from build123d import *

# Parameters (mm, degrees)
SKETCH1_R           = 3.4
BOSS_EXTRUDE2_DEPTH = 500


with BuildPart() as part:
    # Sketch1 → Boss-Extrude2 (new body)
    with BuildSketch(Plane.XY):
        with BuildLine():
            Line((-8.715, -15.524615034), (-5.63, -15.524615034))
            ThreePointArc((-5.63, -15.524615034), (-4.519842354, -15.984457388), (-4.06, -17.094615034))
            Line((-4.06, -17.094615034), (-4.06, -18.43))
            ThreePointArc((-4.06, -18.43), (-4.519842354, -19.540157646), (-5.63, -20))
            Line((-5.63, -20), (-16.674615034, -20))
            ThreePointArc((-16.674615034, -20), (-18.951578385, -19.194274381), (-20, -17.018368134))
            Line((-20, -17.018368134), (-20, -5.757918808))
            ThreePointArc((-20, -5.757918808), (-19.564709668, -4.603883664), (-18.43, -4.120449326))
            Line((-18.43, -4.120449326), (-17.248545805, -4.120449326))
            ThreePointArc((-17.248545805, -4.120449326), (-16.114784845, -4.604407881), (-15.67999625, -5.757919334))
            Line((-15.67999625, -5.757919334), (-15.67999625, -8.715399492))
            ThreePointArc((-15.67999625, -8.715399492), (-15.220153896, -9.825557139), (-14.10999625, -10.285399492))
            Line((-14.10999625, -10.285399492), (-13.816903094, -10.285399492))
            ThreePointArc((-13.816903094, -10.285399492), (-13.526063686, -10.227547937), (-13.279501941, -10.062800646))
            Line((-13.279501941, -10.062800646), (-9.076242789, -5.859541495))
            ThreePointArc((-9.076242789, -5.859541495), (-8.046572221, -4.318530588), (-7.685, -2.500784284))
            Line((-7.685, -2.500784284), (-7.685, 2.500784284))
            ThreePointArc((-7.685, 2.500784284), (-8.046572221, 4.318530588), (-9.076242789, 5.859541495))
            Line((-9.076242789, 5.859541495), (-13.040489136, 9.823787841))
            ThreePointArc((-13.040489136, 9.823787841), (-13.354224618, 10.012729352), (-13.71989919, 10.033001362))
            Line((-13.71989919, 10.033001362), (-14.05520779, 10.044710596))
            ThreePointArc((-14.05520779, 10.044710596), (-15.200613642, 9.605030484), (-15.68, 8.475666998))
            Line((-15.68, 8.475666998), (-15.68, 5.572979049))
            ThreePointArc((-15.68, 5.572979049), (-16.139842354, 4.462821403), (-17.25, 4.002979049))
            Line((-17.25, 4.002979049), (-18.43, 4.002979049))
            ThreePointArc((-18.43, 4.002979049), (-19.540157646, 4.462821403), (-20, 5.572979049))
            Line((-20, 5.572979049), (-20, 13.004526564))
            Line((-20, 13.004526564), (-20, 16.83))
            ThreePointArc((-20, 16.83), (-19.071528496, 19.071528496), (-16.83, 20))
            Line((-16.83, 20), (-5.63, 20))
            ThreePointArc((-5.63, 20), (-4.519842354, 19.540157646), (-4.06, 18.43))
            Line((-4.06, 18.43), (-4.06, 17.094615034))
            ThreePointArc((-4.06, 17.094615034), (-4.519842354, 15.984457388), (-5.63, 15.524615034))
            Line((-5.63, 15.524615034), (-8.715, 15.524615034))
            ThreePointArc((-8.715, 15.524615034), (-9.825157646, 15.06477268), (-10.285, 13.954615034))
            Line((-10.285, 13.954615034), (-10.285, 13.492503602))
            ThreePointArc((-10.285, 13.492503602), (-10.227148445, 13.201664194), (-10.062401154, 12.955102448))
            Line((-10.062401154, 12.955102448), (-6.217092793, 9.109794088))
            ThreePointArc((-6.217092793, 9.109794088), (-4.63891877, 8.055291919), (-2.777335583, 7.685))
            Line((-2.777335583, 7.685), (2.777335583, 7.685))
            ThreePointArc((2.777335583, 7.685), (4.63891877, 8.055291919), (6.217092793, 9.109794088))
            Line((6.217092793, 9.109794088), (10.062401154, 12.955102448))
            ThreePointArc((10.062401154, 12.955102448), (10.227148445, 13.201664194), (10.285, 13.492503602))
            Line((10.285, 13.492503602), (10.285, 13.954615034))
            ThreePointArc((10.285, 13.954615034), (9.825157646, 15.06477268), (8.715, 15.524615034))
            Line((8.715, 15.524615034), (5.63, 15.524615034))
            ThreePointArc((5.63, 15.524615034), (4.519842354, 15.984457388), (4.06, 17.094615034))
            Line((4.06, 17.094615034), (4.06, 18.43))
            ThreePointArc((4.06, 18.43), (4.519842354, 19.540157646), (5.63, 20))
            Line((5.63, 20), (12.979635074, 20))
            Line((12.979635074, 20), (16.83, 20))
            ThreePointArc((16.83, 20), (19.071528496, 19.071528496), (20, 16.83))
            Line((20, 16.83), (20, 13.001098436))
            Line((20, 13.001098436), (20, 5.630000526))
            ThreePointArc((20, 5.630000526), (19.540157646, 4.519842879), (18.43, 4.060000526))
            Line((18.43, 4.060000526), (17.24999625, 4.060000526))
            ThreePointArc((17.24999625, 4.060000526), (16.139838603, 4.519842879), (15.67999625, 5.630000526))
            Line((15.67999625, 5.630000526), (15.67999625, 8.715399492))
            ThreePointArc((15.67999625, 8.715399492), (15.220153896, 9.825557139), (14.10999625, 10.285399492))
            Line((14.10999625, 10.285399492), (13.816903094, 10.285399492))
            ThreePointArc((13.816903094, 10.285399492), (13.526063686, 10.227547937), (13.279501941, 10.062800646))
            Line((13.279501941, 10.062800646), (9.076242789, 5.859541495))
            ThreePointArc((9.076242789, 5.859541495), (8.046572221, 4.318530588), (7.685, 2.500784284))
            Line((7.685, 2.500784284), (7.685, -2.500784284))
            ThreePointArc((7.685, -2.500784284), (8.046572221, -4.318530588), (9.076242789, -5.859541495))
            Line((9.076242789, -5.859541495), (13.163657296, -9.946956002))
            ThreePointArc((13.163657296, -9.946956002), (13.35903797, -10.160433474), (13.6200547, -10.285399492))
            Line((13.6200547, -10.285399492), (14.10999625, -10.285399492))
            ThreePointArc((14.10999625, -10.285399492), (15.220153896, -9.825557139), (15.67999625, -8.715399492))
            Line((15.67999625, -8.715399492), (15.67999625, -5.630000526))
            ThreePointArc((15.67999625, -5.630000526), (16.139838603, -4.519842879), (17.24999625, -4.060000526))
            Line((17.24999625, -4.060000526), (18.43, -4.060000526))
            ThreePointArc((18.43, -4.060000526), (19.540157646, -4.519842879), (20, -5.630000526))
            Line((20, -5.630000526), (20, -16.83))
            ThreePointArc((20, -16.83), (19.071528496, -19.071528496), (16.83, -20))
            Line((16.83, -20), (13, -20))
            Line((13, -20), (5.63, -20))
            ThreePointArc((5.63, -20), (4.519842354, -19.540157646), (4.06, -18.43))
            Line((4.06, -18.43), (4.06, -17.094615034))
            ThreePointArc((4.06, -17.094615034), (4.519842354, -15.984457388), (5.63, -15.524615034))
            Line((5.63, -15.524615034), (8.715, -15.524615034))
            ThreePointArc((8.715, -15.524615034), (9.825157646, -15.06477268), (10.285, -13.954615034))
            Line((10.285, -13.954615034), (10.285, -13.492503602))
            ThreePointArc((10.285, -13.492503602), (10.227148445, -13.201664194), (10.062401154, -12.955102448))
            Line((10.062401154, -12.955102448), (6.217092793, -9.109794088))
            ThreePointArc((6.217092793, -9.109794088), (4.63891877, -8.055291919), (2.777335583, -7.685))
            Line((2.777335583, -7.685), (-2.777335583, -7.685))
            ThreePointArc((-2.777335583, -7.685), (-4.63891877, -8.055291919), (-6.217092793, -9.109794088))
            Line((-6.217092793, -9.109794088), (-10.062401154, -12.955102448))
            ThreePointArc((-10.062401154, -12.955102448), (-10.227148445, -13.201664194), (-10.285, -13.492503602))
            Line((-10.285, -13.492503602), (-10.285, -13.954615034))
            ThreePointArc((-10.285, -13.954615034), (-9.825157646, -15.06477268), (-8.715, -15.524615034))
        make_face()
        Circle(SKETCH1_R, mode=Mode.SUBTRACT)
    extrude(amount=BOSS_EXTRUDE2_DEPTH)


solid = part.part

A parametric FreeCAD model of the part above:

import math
import FreeCAD as App
import Part
import Sketcher

V = App.Vector
Q = App.Units.Quantity

doc = App.newDocument("Part")
body = doc.addObject("PartDesign::Body", "Body")

# Sketch on XY plane
sketch1 = body.newObject("Sketcher::SketchObject", "Sketch")
sketch1.AttachmentSupport = (doc.getObject("XY_Plane"), [""])
sketch1.MapMode = "FlatFace"
sketch1.addGeometry([
    Part.LineSegment(V(-5.63, -15.52, 0), V(-8.71, -15.52, 0)),  # 0
    Part.ArcOfCircle(Part.Circle(V(-8.71, -13.95, 0), V(0, 0, 1), 1.57), math.radians(-180), math.radians(-90)),  # 1
    Part.LineSegment(V(-10.29, -13.95, 0), V(-10.29, -13.49, 0)),  # 2
    Part.ArcOfCircle(Part.Circle(V(-9.52, -13.49, 0), V(0, 0, 1), 0.76), math.radians(135), math.radians(180)),  # 3
    Part.LineSegment(V(-10.06, -12.96, 0), V(-6.22, -9.11, 0)),  # 4
    Part.ArcOfCircle(Part.Circle(V(-2.78, -12.55, 0), V(0, 0, 1), 4.86), math.radians(90), math.radians(135)),  # 5
    Part.LineSegment(V(-2.78, -7.68, 0), V(2.78, -7.68, 0)),  # 6
    Part.ArcOfCircle(Part.Circle(V(2.78, -12.55, 0), V(0, 0, 1), 4.86), math.radians(45), math.radians(90)),  # 7
    Part.LineSegment(V(6.22, -9.11, 0), V(10.06, -12.96, 0)),  # 8
    Part.ArcOfCircle(Part.Circle(V(9.52, -13.49, 0), V(0, 0, 1), 0.76), math.radians(0), math.radians(45)),  # 9
    Part.LineSegment(V(10.29, -13.49, 0), V(10.29, -13.95, 0)),  # 10
    Part.ArcOfCircle(Part.Circle(V(8.71, -13.95, 0), V(0, 0, 1), 1.57), math.radians(-90), math.radians(0)),  # 11
    Part.LineSegment(V(8.71, -15.52, 0), V(5.63, -15.52, 0)),  # 12
    Part.ArcOfCircle(Part.Circle(V(5.63, -17.09, 0), V(0, 0, 1), 1.57), math.radians(90), math.radians(180)),  # 13
    Part.LineSegment(V(4.06, -17.09, 0), V(4.06, -18.43, 0)),  # 14
    Part.ArcOfCircle(Part.Circle(V(5.63, -18.43, 0), V(0, 0, 1), 1.57), math.radians(-180), math.radians(-90)),  # 15
    Part.LineSegment(V(5.63, -20, 0), V(16.83, -20, 0)),  # 16
    Part.ArcOfCircle(Part.Circle(V(16.83, -16.83, 0), V(0, 0, 1), 3.17), math.radians(-90), math.radians(0)),  # 17
    Part.LineSegment(V(20, -16.83, 0), V(20, -5.63, 0)),  # 18
    Part.ArcOfCircle(Part.Circle(V(18.43, -5.63, 0), V(0, 0, 1), 1.57), math.radians(0), math.radians(90)),  # 19
    Part.LineSegment(V(18.43, -4.06, 0), V(17.25, -4.06, 0)),  # 20
    Part.ArcOfCircle(Part.Circle(V(17.25, -5.63, 0), V(0, 0, 1), 1.57), math.radians(90), math.radians(180)),  # 21
    Part.LineSegment(V(15.68, -5.63, 0), V(15.68, -8.72, 0)),  # 22
    Part.ArcOfCircle(Part.Circle(V(14.11, -8.72, 0), V(0, 0, 1), 1.57), math.radians(-90), math.radians(0)),  # 23
    Part.LineSegment(V(14.11, -10.29, 0), V(13.62, -10.29, 0)),  # 24
    Part.ArcOfCircle(Part.Circle(V(13.81, -9.55, 0), V(0, 0, 1), 0.76), math.radians(-149), math.radians(-105)),  # 25
    Part.LineSegment(V(13.16, -9.95, 0), V(9.08, -5.86, 0)),  # 26
    Part.ArcOfCircle(Part.Circle(V(12.44, -2.5, 0), V(0, 0, 1), 4.75), math.radians(-180), math.radians(-135)),  # 27
    Part.LineSegment(V(7.68, -2.5, 0), V(7.68, 2.5, 0)),  # 28
    Part.ArcOfCircle(Part.Circle(V(12.44, 2.5, 0), V(0, 0, 1), 4.75), math.radians(135), math.radians(180)),  # 29
    Part.LineSegment(V(9.08, 5.86, 0), V(13.28, 10.06, 0)),  # 30
    Part.ArcOfCircle(Part.Circle(V(13.82, 9.53, 0), V(0, 0, 1), 0.76), math.radians(90), math.radians(135)),  # 31
    Part.LineSegment(V(13.82, 10.29, 0), V(14.11, 10.29, 0)),  # 32
    Part.ArcOfCircle(Part.Circle(V(14.11, 8.72, 0), V(0, 0, 1), 1.57), math.radians(0), math.radians(90)),  # 33
    Part.LineSegment(V(15.68, 8.72, 0), V(15.68, 5.63, 0)),  # 34
    Part.ArcOfCircle(Part.Circle(V(17.25, 5.63, 0), V(0, 0, 1), 1.57), math.radians(180), math.radians(270)),  # 35
    Part.LineSegment(V(17.25, 4.06, 0), V(18.43, 4.06, 0)),  # 36
    Part.ArcOfCircle(Part.Circle(V(18.43, 5.63, 0), V(0, 0, 1), 1.57), math.radians(-90), math.radians(0)),  # 37
    Part.LineSegment(V(20, 5.63, 0), V(20, 16.83, 0)),  # 38
    Part.ArcOfCircle(Part.Circle(V(16.83, 16.83, 0), V(0, 0, 1), 3.17), math.radians(0), math.radians(90)),  # 39
    Part.LineSegment(V(16.83, 20, 0), V(5.63, 20, 0)),  # 40
    Part.ArcOfCircle(Part.Circle(V(5.63, 18.43, 0), V(0, 0, 1), 1.57), math.radians(90), math.radians(180)),  # 41
    Part.LineSegment(V(4.06, 18.43, 0), V(4.06, 17.09, 0)),  # 42
    Part.ArcOfCircle(Part.Circle(V(5.63, 17.09, 0), V(0, 0, 1), 1.57), math.radians(-180), math.radians(-90)),  # 43
    Part.LineSegment(V(5.63, 15.52, 0), V(8.71, 15.52, 0)),  # 44
    Part.ArcOfCircle(Part.Circle(V(8.71, 13.95, 0), V(0, 0, 1), 1.57), math.radians(0), math.radians(90)),  # 45
    Part.LineSegment(V(10.29, 13.95, 0), V(10.29, 13.49, 0)),  # 46
    Part.ArcOfCircle(Part.Circle(V(9.52, 13.49, 0), V(0, 0, 1), 0.76), math.radians(-45), math.radians(0)),  # 47
    Part.LineSegment(V(10.06, 12.96, 0), V(6.22, 9.11, 0)),  # 48
    Part.ArcOfCircle(Part.Circle(V(2.78, 12.55, 0), V(0, 0, 1), 4.86), math.radians(-90), math.radians(-45)),  # 49
    Part.LineSegment(V(2.78, 7.68, 0), V(-2.78, 7.68, 0)),  # 50
    Part.ArcOfCircle(Part.Circle(V(-2.78, 12.55, 0), V(0, 0, 1), 4.86), math.radians(-135), math.radians(-90)),  # 51
    Part.LineSegment(V(-6.22, 9.11, 0), V(-10.06, 12.96, 0)),  # 52
    Part.ArcOfCircle(Part.Circle(V(-9.52, 13.49, 0), V(0, 0, 1), 0.76), math.radians(180), math.radians(225)),  # 53
    Part.LineSegment(V(-10.29, 13.49, 0), V(-10.29, 13.95, 0)),  # 54
    Part.ArcOfCircle(Part.Circle(V(-8.71, 13.95, 0), V(0, 0, 1), 1.57), math.radians(90), math.radians(180)),  # 55
    Part.LineSegment(V(-8.71, 15.52, 0), V(-5.63, 15.52, 0)),  # 56
    Part.ArcOfCircle(Part.Circle(V(-5.63, 17.09, 0), V(0, 0, 1), 1.57), math.radians(-90), math.radians(0)),  # 57
    Part.LineSegment(V(-4.06, 17.09, 0), V(-4.06, 18.43, 0)),  # 58
    Part.ArcOfCircle(Part.Circle(V(-5.63, 18.43, 0), V(0, 0, 1), 1.57), math.radians(0), math.radians(90)),  # 59
    Part.LineSegment(V(-5.63, 20, 0), V(-16.83, 20, 0)),  # 60
    Part.ArcOfCircle(Part.Circle(V(-16.83, 16.83, 0), V(0, 0, 1), 3.17), math.radians(90), math.radians(180)),  # 61
    Part.LineSegment(V(-20, 16.83, 0), V(-20, 5.57, 0)),  # 62
    Part.ArcOfCircle(Part.Circle(V(-18.43, 5.57, 0), V(0, 0, 1), 1.57), math.radians(-180), math.radians(-90)),  # 63
    Part.LineSegment(V(-18.43, 4, 0), V(-17.25, 4, 0)),  # 64
    Part.ArcOfCircle(Part.Circle(V(-17.25, 5.57, 0), V(0, 0, 1), 1.57), math.radians(-90), math.radians(0)),  # 65
    Part.LineSegment(V(-15.68, 5.57, 0), V(-15.68, 8.48, 0)),  # 66
    Part.ArcOfCircle(Part.Circle(V(-14.11, 8.48, 0), V(0, 0, 1), 1.57), math.radians(88), math.radians(180)),  # 67
    Part.LineSegment(V(-14.06, 10.04, 0), V(-13.72, 10.03, 0)),  # 68
    Part.ArcOfCircle(Part.Circle(V(-13.58, 9.29, 0), V(0, 0, 1), 0.76), math.radians(45), math.radians(101)),  # 69
    Part.LineSegment(V(-13.04, 9.82, 0), V(-9.08, 5.86, 0)),  # 70
    Part.ArcOfCircle(Part.Circle(V(-12.44, 2.5, 0), V(0, 0, 1), 4.75), math.radians(0), math.radians(45)),  # 71
    Part.LineSegment(V(-7.68, 2.5, 0), V(-7.68, -2.5, 0)),  # 72
    Part.ArcOfCircle(Part.Circle(V(-12.44, -2.5, 0), V(0, 0, 1), 4.75), math.radians(-45), math.radians(0)),  # 73
    Part.LineSegment(V(-9.08, -5.86, 0), V(-13.28, -10.06, 0)),  # 74
    Part.ArcOfCircle(Part.Circle(V(-13.82, -9.53, 0), V(0, 0, 1), 0.76), math.radians(-90), math.radians(-45)),  # 75
    Part.LineSegment(V(-13.82, -10.29, 0), V(-14.11, -10.29, 0)),  # 76
    Part.ArcOfCircle(Part.Circle(V(-14.11, -8.72, 0), V(0, 0, 1), 1.57), math.radians(180), math.radians(270)),  # 77
    Part.LineSegment(V(-15.68, -8.72, 0), V(-15.68, -5.76, 0)),  # 78
    Part.ArcOfCircle(Part.Circle(V(-17.25, -5.69, 0), V(0, 0, 1), 1.57), math.radians(-2), math.radians(90)),  # 79
    Part.LineSegment(V(-17.25, -4.12, 0), V(-18.43, -4.12, 0)),  # 80
    Part.ArcOfCircle(Part.Circle(V(-18.43, -5.69, 0), V(0, 0, 1), 1.57), math.radians(90), math.radians(182)),  # 81
    Part.LineSegment(V(-20, -5.76, 0), V(-20, -17.02, 0)),  # 82
    Part.ArcOfCircle(Part.Circle(V(-16.84, -16.83, 0), V(0, 0, 1), 3.17), math.radians(-177), math.radians(-87)),  # 83
    Part.LineSegment(V(-16.67, -20, 0), V(-5.63, -20, 0)),  # 84
    Part.ArcOfCircle(Part.Circle(V(-5.63, -18.43, 0), V(0, 0, 1), 1.57), math.radians(-90), math.radians(0)),  # 85
    Part.LineSegment(V(-4.06, -18.43, 0), V(-4.06, -17.09, 0)),  # 86
    Part.ArcOfCircle(Part.Circle(V(-5.63, -17.09, 0), V(0, 0, 1), 1.57), math.radians(0), math.radians(90)),  # 87
    Part.Circle(V(0, 0, 0), V(0, 0, 1), 3.4),  # 88
], False)
sketch1.addConstraint([
    Sketcher.Constraint("Tangent", 0, 2, 1, 2),
    Sketcher.Constraint("Tangent", 1, 1, 2, 1),
    Sketcher.Constraint("Tangent", 2, 2, 3, 2),
    Sketcher.Constraint("Tangent", 3, 1, 4, 1),
    Sketcher.Constraint("Tangent", 4, 2, 5, 2),
    Sketcher.Constraint("Tangent", 5, 1, 6, 1),
    Sketcher.Constraint("Tangent", 6, 2, 7, 2),
    Sketcher.Constraint("Tangent", 7, 1, 8, 1),
    Sketcher.Constraint("Tangent", 8, 2, 9, 2),
    Sketcher.Constraint("Tangent", 9, 1, 10, 1),
    Sketcher.Constraint("Tangent", 10, 2, 11, 2),
    Sketcher.Constraint("Tangent", 11, 1, 12, 1),
    Sketcher.Constraint("Tangent", 12, 2, 13, 1),
    Sketcher.Constraint("Tangent", 13, 2, 14, 1),
    Sketcher.Constraint("Tangent", 14, 2, 15, 1),
    Sketcher.Constraint("Tangent", 15, 2, 16, 1),
    Sketcher.Constraint("Tangent", 16, 2, 17, 1),
    Sketcher.Constraint("Tangent", 17, 2, 18, 1),
    Sketcher.Constraint("Tangent", 18, 2, 19, 1),
    Sketcher.Constraint("Tangent", 19, 2, 20, 1),
    Sketcher.Constraint("Tangent", 20, 2, 21, 1),
    Sketcher.Constraint("Tangent", 21, 2, 22, 1),
    Sketcher.Constraint("Tangent", 22, 2, 23, 2),
    Sketcher.Constraint("Tangent", 23, 1, 24, 1),
    Sketcher.Constraint("Coincident", 24, 2, 25, 2),
    Sketcher.Constraint("Coincident", 25, 1, 26, 1),
    Sketcher.Constraint("Tangent", 26, 2, 27, 2),
    Sketcher.Constraint("Tangent", 27, 1, 28, 1),
    Sketcher.Constraint("Tangent", 28, 2, 29, 2),
    Sketcher.Constraint("Tangent", 29, 1, 30, 1),
    Sketcher.Constraint("Tangent", 30, 2, 31, 2),
    Sketcher.Constraint("Tangent", 31, 1, 32, 1),
    Sketcher.Constraint("Tangent", 32, 2, 33, 2),
    Sketcher.Constraint("Tangent", 33, 1, 34, 1),
    Sketcher.Constraint("Tangent", 34, 2, 35, 1),
    Sketcher.Constraint("Tangent", 35, 2, 36, 1),
    Sketcher.Constraint("Tangent", 36, 2, 37, 1),
    Sketcher.Constraint("Tangent", 37, 2, 38, 1),
    Sketcher.Constraint("Tangent", 38, 2, 39, 1),
    Sketcher.Constraint("Tangent", 39, 2, 40, 1),
    Sketcher.Constraint("Tangent", 40, 2, 41, 1),
    Sketcher.Constraint("Tangent", 41, 2, 42, 1),
    Sketcher.Constraint("Tangent", 42, 2, 43, 1),
    Sketcher.Constraint("Tangent", 43, 2, 44, 1),
    Sketcher.Constraint("Tangent", 44, 2, 45, 2),
    Sketcher.Constraint("Tangent", 45, 1, 46, 1),
    Sketcher.Constraint("Tangent", 46, 2, 47, 2),
    Sketcher.Constraint("Tangent", 47, 1, 48, 1),
    Sketcher.Constraint("Tangent", 48, 2, 49, 2),
    Sketcher.Constraint("Tangent", 49, 1, 50, 1),
    Sketcher.Constraint("Tangent", 50, 2, 51, 2),
    Sketcher.Constraint("Tangent", 51, 1, 52, 1),
    Sketcher.Constraint("Tangent", 52, 2, 53, 2),
    Sketcher.Constraint("Tangent", 53, 1, 54, 1),
    Sketcher.Constraint("Tangent", 54, 2, 55, 2),
    Sketcher.Constraint("Tangent", 55, 1, 56, 1),
    Sketcher.Constraint("Tangent", 56, 2, 57, 1),
    Sketcher.Constraint("Tangent", 57, 2, 58, 1),
    Sketcher.Constraint("Tangent", 58, 2, 59, 1),
    Sketcher.Constraint("Tangent", 59, 2, 60, 1),
    Sketcher.Constraint("Tangent", 60, 2, 61, 1),
    Sketcher.Constraint("Tangent", 61, 2, 62, 1),
    Sketcher.Constraint("Tangent", 62, 2, 63, 1),
    Sketcher.Constraint("Tangent", 63, 2, 64, 1),
    Sketcher.Constraint("Tangent", 64, 2, 65, 1),
    Sketcher.Constraint("Tangent", 65, 2, 66, 1),
    Sketcher.Constraint("Tangent", 66, 2, 67, 2),
    Sketcher.Constraint("Tangent", 67, 1, 68, 1),
    Sketcher.Constraint("Coincident", 68, 2, 69, 2),
    Sketcher.Constraint("Tangent", 69, 1, 70, 1),
    Sketcher.Constraint("Tangent", 70, 2, 71, 2),
    Sketcher.Constraint("Tangent", 71, 1, 72, 1),
    Sketcher.Constraint("Tangent", 72, 2, 73, 2),
    Sketcher.Constraint("Tangent", 73, 1, 74, 1),
    Sketcher.Constraint("Tangent", 74, 2, 75, 2),
    Sketcher.Constraint("Tangent", 75, 1, 76, 1),
    Sketcher.Constraint("Tangent", 76, 2, 77, 2),
    Sketcher.Constraint("Tangent", 77, 1, 78, 1),
    Sketcher.Constraint("Coincident", 78, 2, 79, 1),
    Sketcher.Constraint("Tangent", 79, 2, 80, 1),
    Sketcher.Constraint("Coincident", 80, 2, 81, 1),
    Sketcher.Constraint("Coincident", 81, 2, 82, 1),
    Sketcher.Constraint("Coincident", 82, 2, 83, 1),
    Sketcher.Constraint("Coincident", 83, 2, 84, 1),
    Sketcher.Constraint("Tangent", 84, 2, 85, 1),
    Sketcher.Constraint("Tangent", 85, 2, 86, 1),
    Sketcher.Constraint("Tangent", 86, 2, 87, 1),
    Sketcher.Constraint("Tangent", 87, 2, 0, 1),
    Sketcher.Constraint("Horizontal", 0),
    Sketcher.Constraint("Vertical", 2),
    Sketcher.Constraint("Horizontal", 6),
    Sketcher.Constraint("Vertical", 10),
    Sketcher.Constraint("Horizontal", 12),
    Sketcher.Constraint("Vertical", 14),
    Sketcher.Constraint("Horizontal", 16),
    Sketcher.Constraint("Vertical", 18),
    Sketcher.Constraint("Horizontal", 20),
    Sketcher.Constraint("Vertical", 22),
    Sketcher.Constraint("Horizontal", 24),
    Sketcher.Constraint("Vertical", 28),
    Sketcher.Constraint("Horizontal", 32),
    Sketcher.Constraint("Vertical", 34),
    Sketcher.Constraint("Horizontal", 36),
    Sketcher.Constraint("Vertical", 38),
    Sketcher.Constraint("Horizontal", 40),
    Sketcher.Constraint("Vertical", 42),
    Sketcher.Constraint("Horizontal", 44),
    Sketcher.Constraint("Vertical", 46),
    Sketcher.Constraint("Horizontal", 50),
    Sketcher.Constraint("Vertical", 54),
    Sketcher.Constraint("Horizontal", 56),
    Sketcher.Constraint("Vertical", 58),
    Sketcher.Constraint("Horizontal", 60),
    Sketcher.Constraint("Vertical", 62),
    Sketcher.Constraint("Horizontal", 64),
    Sketcher.Constraint("Vertical", 66),
    Sketcher.Constraint("Vertical", 72),
    Sketcher.Constraint("Horizontal", 76),
    Sketcher.Constraint("Vertical", 78),
    Sketcher.Constraint("Horizontal", 80),
    Sketcher.Constraint("Vertical", 82),
    Sketcher.Constraint("Horizontal", 84),
    Sketcher.Constraint("Vertical", 86),
    Sketcher.Constraint("Coincident", 88, 3, -1, 1),
    Sketcher.Constraint("Equal", 5, 7),
    Sketcher.Constraint("Equal", 3, 9),
    Sketcher.Constraint("Equal", 1, 11),
    Sketcher.Constraint("Equal", 11, 13),
    Sketcher.Constraint("Equal", 13, 15),
    Sketcher.Constraint("Equal", 15, 19),
    Sketcher.Constraint("Equal", 19, 21),
    Sketcher.Constraint("Equal", 21, 23),
    Sketcher.Constraint("Equal", 9, 25),
    Sketcher.Constraint("Equal", 27, 29),
    Sketcher.Constraint("Equal", 25, 31),
    Sketcher.Constraint("Equal", 23, 33),
    Sketcher.Constraint("Equal", 33, 35),
    Sketcher.Constraint("Equal", 35, 37),
    Sketcher.Constraint("Equal", 17, 39),
    Sketcher.Constraint("Equal", 37, 41),
    Sketcher.Constraint("Equal", 41, 43),
    Sketcher.Constraint("Equal", 43, 45),
    Sketcher.Constraint("Equal", 31, 47),
    Sketcher.Constraint("Equal", 7, 49),
    Sketcher.Constraint("Equal", 49, 51),
    Sketcher.Constraint("Equal", 47, 53),
    Sketcher.Constraint("Equal", 45, 55),
    Sketcher.Constraint("Equal", 55, 57),
    Sketcher.Constraint("Equal", 57, 59),
    Sketcher.Constraint("Equal", 39, 61),
    Sketcher.Constraint("Equal", 59, 63),
    Sketcher.Constraint("Equal", 63, 65),
    Sketcher.Constraint("Equal", 65, 67),
    Sketcher.Constraint("Equal", 53, 69),
    Sketcher.Constraint("Equal", 29, 71),
    Sketcher.Constraint("Equal", 71, 73),
    Sketcher.Constraint("Equal", 69, 75),
    Sketcher.Constraint("Equal", 67, 77),
    Sketcher.Constraint("Equal", 77, 79),
    Sketcher.Constraint("Equal", 79, 81),
    Sketcher.Constraint("Equal", 61, 83),
    Sketcher.Constraint("Equal", 81, 85),
    Sketcher.Constraint("Equal", 85, 87),
    Sketcher.Constraint("Symmetric", 1, 3, 45, 3, -1, 1),
    Sketcher.Constraint("Symmetric", 5, 3, 49, 3, -1, 1),
    Sketcher.Constraint("Symmetric", 9, 3, 53, 3, -1, 1),
    Sketcher.Constraint("Symmetric", 13, 3, 57, 3, -1, 1),
    Sketcher.Constraint("Symmetric", 17, 3, 61, 3, -1, 1),
    Sketcher.Constraint("Symmetric", 27, 3, 71, 3, -1, 1),
    Sketcher.Constraint("Symmetric", 31, 3, 75, 3, -1, 1),
    Sketcher.Constraint("Symmetric", 41, 3, 85, 3, -1, 1),
    Sketcher.Constraint("Symmetric", 3, 3, 9, 3, -2),
    Sketcher.Constraint("Symmetric", 43, 3, 57, 3, -2),
    Sketcher.Constraint("Symmetric", 39, 3, 61, 3, -2),
    Sketcher.Constraint("Symmetric", 23, 3, 77, 3, -2),
    Sketcher.Constraint("Symmetric", 48, 2, 51, 1, -2),
    Sketcher.Constraint("Symmetric", 29, 1, 70, 2, -2),
    Sketcher.Constraint("Symmetric", 26, 2, 73, 1, -2),
    Sketcher.Constraint("Symmetric", 21, 3, 35, 3, -1),
    Sketcher.Constraint("Perpendicular", 4, 8),
    Sketcher.Constraint("Parallel", 8, 26),
    Sketcher.Constraint("Perpendicular", 26, 30),
    Sketcher.Constraint("Horizontal", 78, 2, 81, 2),
    Sketcher.Constraint("Vertical", 63, 2, 80, 2),
    Sketcher.Constraint("Vertical", 62, 2, 81, 2),
    Sketcher.Constraint("Equal", 60, 18),
    Sketcher.Constraint("Diameter", 88, 6.8),
    Sketcher.Constraint("Angle", 68, Q("-2 deg")),
    Sketcher.Constraint("Radius", 1, 1.57),
    Sketcher.Constraint("Radius", 3, 0.76),
    Sketcher.Constraint("Radius", 17, 3.17),
    Sketcher.Constraint("Radius", 27, 4.75),
    Sketcher.Constraint("DistanceX", 16, 1, 16, 2, 11.2),
    Sketcher.Constraint("DistanceY", 15, 2, -1, 1, 20.0),
    Sketcher.Constraint("DistanceX", -1, 1, 17, 2, 20.0),
    Sketcher.Constraint("DistanceX", 64, 1, 64, 2, 1.18),
    Sketcher.Constraint("DistanceX", 0, 2, 0, 1, 3.085),
    Sketcher.Constraint("Radius", 5, 4.864551),
    Sketcher.Constraint("DistanceY", 22, 2, 22, 1, 3.085399),
    Sketcher.Constraint("DistanceX", -1, 1, 27, 3, 12.435),
    Sketcher.Constraint("DistanceY", 5, 1, -1, 1, 7.685),
    Sketcher.Constraint("DistanceY", -1, 1, 68, 2, 10.033001),
    Sketcher.Constraint("DistanceX", 6, 1, 6, 2, 5.554671),
    Sketcher.Constraint("DistanceX", 24, 2, 24, 1, 0.489942),
    Sketcher.Constraint("DistanceY", 2, 1, 2, 2, 0.462111),
    Sketcher.Constraint("DistanceY", 28, 1, 28, 2, 5.001569),
    Sketcher.Constraint("DistanceY", 62, 2, 62, 1, 11.257021),
    Sketcher.Constraint("DistanceY", 78, 1, 78, 2, 2.95748),
    Sketcher.Constraint("DistanceY", 82, 2, 82, 1, 11.260449),
    Sketcher.Constraint("DistanceX", 68, 2, -1, 1, 13.719899),
    Sketcher.Constraint("DistanceX", 20, 2, 20, 1, 1.180004),
    Sketcher.Constraint("DistanceX", 80, 2, 80, 1, 1.181454),
    Sketcher.Constraint("DistanceX", 84, 1, 84, 2, 11.044615),
    Sketcher.Constraint("DistanceX", -1, 1, 25, 3, 13.811732),
])
pad1 = body.newObject("PartDesign::Pad", "Pad")
pad1.Profile = sketch1
pad1.Length = 500

doc.recompute()
